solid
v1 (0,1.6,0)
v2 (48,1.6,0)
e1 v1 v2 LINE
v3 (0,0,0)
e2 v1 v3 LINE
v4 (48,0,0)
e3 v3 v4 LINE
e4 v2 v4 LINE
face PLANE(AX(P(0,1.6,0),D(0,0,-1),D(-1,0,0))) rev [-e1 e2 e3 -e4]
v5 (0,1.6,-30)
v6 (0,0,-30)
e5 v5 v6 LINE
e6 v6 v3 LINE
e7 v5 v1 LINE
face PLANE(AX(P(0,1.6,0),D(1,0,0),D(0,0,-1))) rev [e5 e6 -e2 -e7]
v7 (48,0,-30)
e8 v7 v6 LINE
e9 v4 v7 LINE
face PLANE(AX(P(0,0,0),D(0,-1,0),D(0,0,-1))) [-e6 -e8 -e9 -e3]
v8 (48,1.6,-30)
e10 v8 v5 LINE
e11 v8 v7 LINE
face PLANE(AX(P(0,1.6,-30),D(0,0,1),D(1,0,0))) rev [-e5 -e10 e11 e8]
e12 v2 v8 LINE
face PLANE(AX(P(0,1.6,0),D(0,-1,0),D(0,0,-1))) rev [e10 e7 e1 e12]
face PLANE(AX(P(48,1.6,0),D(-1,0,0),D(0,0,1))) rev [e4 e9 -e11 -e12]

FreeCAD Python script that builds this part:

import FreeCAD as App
import Part
import Sketcher

V = App.Vector

doc = App.newDocument("Part")
body = doc.addObject("PartDesign::Body", "Body")

# Sketch on XZ plane
sketch1 = body.newObject("Sketcher::SketchObject", "Sketch")
sketch1.AttachmentSupport = (doc.getObject("XZ_Plane"), [""])
sketch1.MapMode = "FlatFace"
sketch1.addGeometry(Part.LineSegment(V(0, -30, 0), V(0, 0, 0)), False)
sketch1.addGeometry(Part.LineSegment(V(0, 0, 0), V(48, 0, 0)), False)
sketch1.addGeometry(Part.LineSegment(V(48, 0, 0), V(48, -30, 0)), False)
sketch1.addGeometry(Part.LineSegment(V(48, -30, 0), V(0, -30, 0)), False)
sketch1.addConstraint(Sketcher.Constraint("Coincident", 0, 2, 1, 1))
sketch1.addConstraint(Sketcher.Constraint("Coincident", 1, 2, 2, 1))
sketch1.addConstraint(Sketcher.Constraint("Coincident", 2, 2, 3, 1))
sketch1.addConstraint(Sketcher.Constraint("Coincident", 3, 2, 0, 1))
sketch1.addConstraint(Sketcher.Constraint("Vertical", 0))
sketch1.addConstraint(Sketcher.Constraint("Horizontal", 1))
sketch1.addConstraint(Sketcher.Constraint("Vertical", 2))
sketch1.addConstraint(Sketcher.Constraint("Horizontal", 3))
sketch1.addConstraint(Sketcher.Constraint("Coincident", 0, 2, -1, 1))
sketch1.addConstraint(Sketcher.Constraint("DistanceX", 1, 1, 1, 2, 48.0))
sketch1.addConstraint(Sketcher.Constraint("DistanceY", 0, 1, 0, 2, 30.0))
pad1 = body.newObject("PartDesign::Pad", "Pad")
pad1.Profile = sketch1
pad1.Length = 1.6
pad1.Reversed = True

doc.recompute()
